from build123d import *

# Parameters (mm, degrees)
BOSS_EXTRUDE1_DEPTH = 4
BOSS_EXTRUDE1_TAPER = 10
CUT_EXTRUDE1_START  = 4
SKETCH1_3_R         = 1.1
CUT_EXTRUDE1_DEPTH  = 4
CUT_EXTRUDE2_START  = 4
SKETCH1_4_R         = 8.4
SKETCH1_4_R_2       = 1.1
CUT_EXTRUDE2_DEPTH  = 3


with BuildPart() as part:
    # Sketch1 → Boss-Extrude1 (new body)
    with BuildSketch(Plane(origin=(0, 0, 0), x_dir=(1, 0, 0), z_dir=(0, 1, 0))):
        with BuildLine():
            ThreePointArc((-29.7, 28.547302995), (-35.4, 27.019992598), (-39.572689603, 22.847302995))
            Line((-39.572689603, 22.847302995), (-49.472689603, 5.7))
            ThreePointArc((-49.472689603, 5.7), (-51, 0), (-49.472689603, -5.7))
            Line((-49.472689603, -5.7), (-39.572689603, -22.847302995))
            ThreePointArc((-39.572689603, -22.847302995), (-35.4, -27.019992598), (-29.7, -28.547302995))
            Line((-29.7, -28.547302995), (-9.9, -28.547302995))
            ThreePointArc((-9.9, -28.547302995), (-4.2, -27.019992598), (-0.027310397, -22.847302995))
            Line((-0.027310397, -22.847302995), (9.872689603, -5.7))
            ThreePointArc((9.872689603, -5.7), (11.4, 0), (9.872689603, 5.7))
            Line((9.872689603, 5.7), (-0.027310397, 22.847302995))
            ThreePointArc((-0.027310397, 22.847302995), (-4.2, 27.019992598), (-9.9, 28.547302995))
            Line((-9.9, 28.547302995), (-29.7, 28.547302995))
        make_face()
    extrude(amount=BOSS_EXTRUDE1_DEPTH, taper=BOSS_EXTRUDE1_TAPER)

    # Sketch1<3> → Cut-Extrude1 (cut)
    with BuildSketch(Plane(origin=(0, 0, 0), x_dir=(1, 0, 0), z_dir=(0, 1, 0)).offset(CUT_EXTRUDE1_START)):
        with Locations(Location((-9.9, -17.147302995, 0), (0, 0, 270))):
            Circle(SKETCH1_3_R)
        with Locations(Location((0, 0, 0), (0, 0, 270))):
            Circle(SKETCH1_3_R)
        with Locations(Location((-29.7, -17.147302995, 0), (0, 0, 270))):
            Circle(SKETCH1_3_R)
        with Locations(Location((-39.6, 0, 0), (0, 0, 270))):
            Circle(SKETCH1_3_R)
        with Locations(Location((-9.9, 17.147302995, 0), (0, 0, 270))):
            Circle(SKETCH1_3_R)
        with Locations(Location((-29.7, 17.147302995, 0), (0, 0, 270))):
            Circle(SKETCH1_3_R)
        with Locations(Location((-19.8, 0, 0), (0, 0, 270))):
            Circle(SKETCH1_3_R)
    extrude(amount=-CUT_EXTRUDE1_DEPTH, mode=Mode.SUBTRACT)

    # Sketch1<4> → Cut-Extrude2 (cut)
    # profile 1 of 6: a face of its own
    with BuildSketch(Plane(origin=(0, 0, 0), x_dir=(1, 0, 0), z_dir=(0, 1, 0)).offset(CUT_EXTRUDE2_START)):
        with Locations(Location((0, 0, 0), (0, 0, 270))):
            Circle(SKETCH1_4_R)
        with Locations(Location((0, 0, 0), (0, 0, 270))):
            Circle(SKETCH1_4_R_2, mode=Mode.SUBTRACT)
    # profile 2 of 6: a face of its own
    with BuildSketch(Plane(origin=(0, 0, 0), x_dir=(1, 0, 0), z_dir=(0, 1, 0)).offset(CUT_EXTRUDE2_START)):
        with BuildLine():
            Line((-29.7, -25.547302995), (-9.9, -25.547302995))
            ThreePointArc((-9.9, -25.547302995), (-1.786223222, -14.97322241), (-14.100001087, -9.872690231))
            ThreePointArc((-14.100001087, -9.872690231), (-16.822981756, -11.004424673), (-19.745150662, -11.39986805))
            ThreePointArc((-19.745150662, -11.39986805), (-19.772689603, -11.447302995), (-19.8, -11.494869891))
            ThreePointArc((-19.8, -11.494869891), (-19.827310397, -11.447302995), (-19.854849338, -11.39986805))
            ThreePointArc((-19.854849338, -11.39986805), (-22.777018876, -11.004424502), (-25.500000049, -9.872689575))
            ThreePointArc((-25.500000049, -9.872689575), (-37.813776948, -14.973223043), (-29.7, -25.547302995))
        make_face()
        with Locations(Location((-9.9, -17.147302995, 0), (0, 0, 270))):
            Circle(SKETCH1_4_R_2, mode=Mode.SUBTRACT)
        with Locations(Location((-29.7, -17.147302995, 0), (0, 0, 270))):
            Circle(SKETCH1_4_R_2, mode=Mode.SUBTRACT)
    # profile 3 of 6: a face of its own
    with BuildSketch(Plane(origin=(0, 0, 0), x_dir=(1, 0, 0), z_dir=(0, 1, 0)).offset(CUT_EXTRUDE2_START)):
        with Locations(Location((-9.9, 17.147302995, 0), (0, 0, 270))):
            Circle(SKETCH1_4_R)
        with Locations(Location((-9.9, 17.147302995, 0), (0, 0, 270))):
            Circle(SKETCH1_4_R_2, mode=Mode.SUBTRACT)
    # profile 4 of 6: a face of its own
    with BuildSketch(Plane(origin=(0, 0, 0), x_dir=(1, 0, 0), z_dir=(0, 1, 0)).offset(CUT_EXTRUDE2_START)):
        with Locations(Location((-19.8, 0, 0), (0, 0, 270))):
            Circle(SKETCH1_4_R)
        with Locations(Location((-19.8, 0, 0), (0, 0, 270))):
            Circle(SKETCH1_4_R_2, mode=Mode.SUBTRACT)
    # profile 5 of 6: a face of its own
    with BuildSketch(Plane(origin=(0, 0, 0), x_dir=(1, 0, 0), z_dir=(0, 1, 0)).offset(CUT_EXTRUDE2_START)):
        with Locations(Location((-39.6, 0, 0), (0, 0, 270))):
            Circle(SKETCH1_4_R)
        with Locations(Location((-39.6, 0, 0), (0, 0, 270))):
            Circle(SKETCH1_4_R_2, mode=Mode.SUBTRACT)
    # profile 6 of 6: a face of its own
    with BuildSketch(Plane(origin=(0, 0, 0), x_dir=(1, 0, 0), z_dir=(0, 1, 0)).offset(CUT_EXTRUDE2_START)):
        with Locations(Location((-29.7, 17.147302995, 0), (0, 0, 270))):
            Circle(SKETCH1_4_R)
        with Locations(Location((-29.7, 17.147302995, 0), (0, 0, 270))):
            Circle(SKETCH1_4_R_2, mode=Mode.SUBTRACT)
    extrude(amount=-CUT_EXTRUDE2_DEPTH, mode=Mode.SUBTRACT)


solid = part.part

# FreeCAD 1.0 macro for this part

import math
import FreeCAD as App
import Part
import Sketcher

V = App.Vector
Q = App.Units.Quantity

doc = App.newDocument("Part")
body = doc.addObject("PartDesign::Body", "Body")

# Sketch on XZ plane
sketch1 = body.newObject("Sketcher::SketchObject", "Sketch")
sketch1.AttachmentSupport = (doc.getObject("XZ_Plane"), [""])
sketch1.MapMode = "FlatFace"
sketch1.addGeometry([
    Part.ArcOfCircle(Part.Circle(V(-30, -17, 0), V(0, 0, 1), 11), math.radians(-150), math.radians(-90)),  # 0
    Part.LineSegment(V(-40, -23, 0), V(-49, -6, 0)),  # 1
    Part.ArcOfCircle(Part.Circle(V(-40, 0, 0), V(0, 0, 1), 11), math.radians(150), math.radians(210)),  # 2
    Part.LineSegment(V(-49, 6, 0), V(-40, 23, 0)),  # 3
    Part.ArcOfCircle(Part.Circle(V(-30, 17, 0), V(0, 0, 1), 11), math.radians(90), math.radians(150)),  # 4
    Part.LineSegment(V(-30, 29, 0), V(-10, 29, 0)),  # 5
    Part.ArcOfCircle(Part.Circle(V(-10, 17, 0), V(0, 0, 1), 11), math.radians(30), math.radians(90)),  # 6
    Part.LineSegment(V(0, 23, 0), V(10, 6, 0)),  # 7
    Part.ArcOfCircle(Part.Circle(V(0, 0, 0), V(0, 0, 1), 11), math.radians(-30), math.radians(30)),  # 8
    Part.LineSegment(V(10, -6, 0), V(0, -23, 0)),  # 9
    Part.ArcOfCircle(Part.Circle(V(-10, -17, 0), V(0, 0, 1), 11), math.radians(-90), math.radians(-30)),  # 10
    Part.LineSegment(V(-10, -29, 0), V(-30, -29, 0)),  # 11
], False)
sketch1.addConstraint([
    Sketcher.Constraint("Tangent", 0, 1, 1, 1),
    Sketcher.Constraint("Tangent", 1, 2, 2, 2),
    Sketcher.Constraint("Tangent", 2, 1, 3, 1),
    Sketcher.Constraint("Tangent", 3, 2, 4, 2),
    Sketcher.Constraint("Tangent", 4, 1, 5, 1),
    Sketcher.Constraint("Tangent", 5, 2, 6, 2),
    Sketcher.Constraint("Tangent", 6, 1, 7, 1),
    Sketcher.Constraint("Tangent", 7, 2, 8, 2),
    Sketcher.Constraint("Tangent", 8, 1, 9, 1),
    Sketcher.Constraint("Tangent", 9, 2, 10, 2),
    Sketcher.Constraint("Tangent", 10, 1, 11, 1),
    Sketcher.Constraint("Tangent", 11, 2, 0, 2),
    Sketcher.Constraint("Horizontal", 5),
    Sketcher.Constraint("Horizontal", 11),
    Sketcher.Constraint("Coincident", 8, 3, -1, 1),
    Sketcher.Constraint("Equal", 0, 2),
    Sketcher.Constraint("Equal", 2, 4),
    Sketcher.Constraint("Equal", 4, 6),
    Sketcher.Constraint("Equal", 6, 8),
    Sketcher.Constraint("Equal", 8, 10),
    Sketcher.Constraint("Symmetric", 0, 3, 4, 3, -1),
    Sketcher.Constraint("PointOnObject", 2, 3, -1),
    Sketcher.Constraint("Parallel", 1, 7),
    Sketcher.Constraint("Parallel", 3, 9),
    Sketcher.Constraint("Radius", 0, 11.4),
    Sketcher.Constraint("Angle", 1, Q("120 deg")),
    Sketcher.Constraint("DistanceX", 5, 1, 5, 2, 19.8),
    Sketcher.Constraint("Distance", 1, 19.8),
])
pad1 = body.newObject("PartDesign::Pad", "Pad")
pad1.Profile = sketch1
pad1.Length = 4
pad1.Reversed = True
pad1.TaperAngle = -10

# Sketch on XZ plane
sketch2 = body.newObject("Sketcher::SketchObject", "Sketch001")
sketch2.AttachmentSupport = (doc.getObject("XZ_Plane"), [""])
sketch2.MapMode = "FlatFace"
sketch2.AttachmentOffset = App.Placement(V(0, 0, -4), App.Rotation())
sketch2.addGeometry([
    Part.Circle(V(-9.9, 17.1, 0), V(0, 0, 1), 1.1),  # 0
    Part.Circle(V(0, 0, 0), V(0, 0, 1), 1.1),  # 1
    Part.Circle(V(-29.7, 17.1, 0), V(0, 0, 1), 1.1),  # 2
    Part.Circle(V(-39.6, 0, 0), V(0, 0, 1), 1.1),  # 3
    Part.Circle(V(-9.9, -17.1, 0), V(0, 0, 1), 1.1),  # 4
    Part.Circle(V(-29.7, -17.1, 0), V(0, 0, 1), 1.1),  # 5
    Part.Circle(V(-19.8, 0, 0), V(0, 0, 1), 1.1),  # 6
], False)
sketch2.addConstraint([
    Sketcher.Constraint("Coincident", 1, 3, -1, 1),
    Sketcher.Constraint("Equal", 0, 1),
    Sketcher.Constraint("Equal", 1, 2),
    Sketcher.Constraint("Equal", 2, 3),
    Sketcher.Constraint("Equal", 3, 4),
    Sketcher.Constraint("Equal", 4, 5),
    Sketcher.Constraint("Equal", 5, 6),
    Sketcher.Constraint("Symmetric", 0, 3, 4, 3, -1),
    Sketcher.Constraint("Symmetric", 2, 3, 5, 3, -1),
    Sketcher.Constraint("PointOnObject", 3, 3, -1),
    Sketcher.Constraint("PointOnObject", 6, 3, -1),
    Sketcher.Constraint("Horizontal", 0, 3, 2, 3),
    Sketcher.Constraint("Diameter", 0, 2.2),
    Sketcher.Constraint("DistanceX", 0, 3, -1, 1, 9.9),
    Sketcher.Constraint("DistanceX", 2, 3, -1, 1, 29.7),
    Sketcher.Constraint("DistanceX", 3, 3, -1, 1, 39.6),
    Sketcher.Constraint("DistanceX", 6, 3, -1, 1, 19.8),
    Sketcher.Constraint("DistanceY", -1, 1, 0, 3, 17.147303),
])
pocket1 = body.newObject("PartDesign::Pocket", "Pocket")
pocket1.Profile = sketch2
pocket1.Length = 4
pocket1.Reversed = True

# Sketch on XZ plane
sketch3 = body.newObject("Sketcher::SketchObject", "Sketch002")
sketch3.AttachmentSupport = (doc.getObject("XZ_Plane"), [""])
sketch3.MapMode = "FlatFace"
sketch3.AttachmentOffset = App.Placement(V(0, 0, -4), App.Rotation())
sketch3.addGeometry([
    Part.Circle(V(0, 0, 0), V(0, 0, 1), 8.4),  # 0
    Part.Circle(V(0, 0, 0), V(0, 0, 1), 1.1),  # 1
    Part.LineSegment(V(-29.7, 25.55, 0), V(-9.9, 25.55, 0)),  # 2
    Part.ArcOfCircle(Part.Circle(V(-9.9, 17.15, 0), V(0, 0, 1), 8.4), math.radians(-120), math.radians(90)),  # 3
    Part.ArcOfCircle(Part.Circle(V(-19.8, 0, 0), V(0, 0, 1), 11.4), math.radians(60), math.radians(90)),  # 4
    Part.ArcOfCircle(Part.Circle(V(-9.9, 17.15, 0), V(0, 0, 1), 11.4), math.radians(-150.28), math.radians(-149.72)),  # 5
    Part.ArcOfCircle(Part.Circle(V(-29.7, 17.15, 0), V(0, 0, 1), 11.4), math.radians(-30.28), math.radians(-29.72)),  # 6
    Part.ArcOfCircle(Part.Circle(V(-19.8, 0, 0), V(0, 0, 1), 11.4), math.radians(90), math.radians(120)),  # 7
    Part.ArcOfCircle(Part.Circle(V(-29.7, 17.15, 0), V(0, 0, 1), 8.4), math.radians(90), math.radians(300)),  # 8
    Part.Circle(V(-29.7, 17.15, 0), V(0, 0, 1), 1.1),  # 9
    Part.Circle(V(-9.9, 17.15, 0), V(0, 0, 1), 1.1),  # 10
    Part.Circle(V(-9.9, -17.15, 0), V(0, 0, 1), 8.4),  # 11
    Part.Circle(V(-9.9, -17.15, 0), V(0, 0, 1), 1.1),  # 12
    Part.Circle(V(-19.8, 0, 0), V(0, 0, 1), 8.4),  # 13
    Part.Circle(V(-19.8, 0, 0), V(0, 0, 1), 1.1),  # 14
    Part.Circle(V(-39.6, 0, 0), V(0, 0, 1), 8.4),  # 15
    Part.Circle(V(-39.6, 0, 0), V(0, 0, 1), 1.1),  # 16
    Part.Circle(V(-29.7, -17.15, 0), V(0, 0, 1), 8.4),  # 17
    Part.Circle(V(-29.7, -17.15, 0), V(0, 0, 1), 1.1),  # 18
], False)
sketch3.addConstraint([
    Sketcher.Constraint("Tangent", 2, 2, 3, 2),
    Sketcher.Constraint("Tangent", 3, 1, 4, 1),
    Sketcher.Constraint("Coincident", 4, 2, 5, 2),
    Sketcher.Constraint("Coincident", 5, 1, 6, 2),
    Sketcher.Constraint("Coincident", 6, 1, 7, 1),
    Sketcher.Constraint("Tangent", 7, 2, 8, 2),
    Sketcher.Constraint("Tangent", 8, 1, 2, 1),
    Sketcher.Constraint("Horizontal", 2),
    Sketcher.Constraint("Coincident", 0, 3, -1, 1),
    Sketcher.Constraint("Coincident", 1, 3, -1, 1),
    Sketcher.Constraint("Coincident", 7, 3, 4, 3),
    Sketcher.Constraint("Coincident", 9, 3, 8, 3),
    Sketcher.Constraint("Coincident", 10, 3, 3, 3),
    Sketcher.Constraint("Coincident", 12, 3, 11, 3),
    Sketcher.Constraint("Coincident", 13, 3, 4, 3),
    Sketcher.Constraint("Coincident", 14, 3, 4, 3),
    Sketcher.Constraint("Coincident", 16, 3, 15, 3),
    Sketcher.Constraint("Coincident", 18, 3, 17, 3),
    Sketcher.Constraint("Equal", 0, 3),
    Sketcher.Constraint("Equal", 5, 6),
    Sketcher.Constraint("Equal", 4, 7),
    Sketcher.Constraint("Equal", 3, 8),
    Sketcher.Constraint("Equal", 1, 9),
    Sketcher.Constraint("Equal", 9, 10),
    Sketcher.Constraint("Equal", 8, 11),
    Sketcher.Constraint("Equal", 10, 12),
    Sketcher.Constraint("Equal", 11, 13),
    Sketcher.Constraint("Equal", 12, 14),
    Sketcher.Constraint("Equal", 13, 15),
    Sketcher.Constraint("Equal", 14, 16),
    Sketcher.Constraint("Equal", 15, 17),
    Sketcher.Constraint("Equal", 16, 18),
    Sketcher.Constraint("Symmetric", 3, 3, 11, 3, -1),
    Sketcher.Constraint("Symmetric", 8, 3, 17, 3, -1),
    Sketcher.Constraint("PointOnObject", 4, 3, -1),
    Sketcher.Constraint("PointOnObject", 15, 3, -1),
    Sketcher.Constraint("Horizontal", 5, 3, 6, 3),
    Sketcher.Constraint("Vertical", 14, 3, 5, 1),
    Sketcher.Constraint("Diameter", 0, 16.8),
    Sketcher.Constraint("Diameter", 1, 2.2),
    Sketcher.Constraint("Radius", 4, 11.4),
    Sketcher.Constraint("DistanceX", 2, 1, 2, 2, 19.8),
    Sketcher.Constraint("DistanceX", 3, 3, -1, 1, 9.9),
    Sketcher.Constraint("DistanceX", 15, 3, -1, 1, 39.6),
    Sketcher.Constraint("Radius", 5, 11.40001),
    Sketcher.Constraint("DistanceY", 4, 2, 5, 1, 0.095002),
    Sketcher.Constraint("DistanceX", 5, 3, -1, 1, 9.899991),
])
pocket2 = body.newObject("PartDesign::Pocket", "Pocket001")
pocket2.Profile = sketch3
pocket2.Length = 3
pocket2.Reversed = True

doc.recompute()
